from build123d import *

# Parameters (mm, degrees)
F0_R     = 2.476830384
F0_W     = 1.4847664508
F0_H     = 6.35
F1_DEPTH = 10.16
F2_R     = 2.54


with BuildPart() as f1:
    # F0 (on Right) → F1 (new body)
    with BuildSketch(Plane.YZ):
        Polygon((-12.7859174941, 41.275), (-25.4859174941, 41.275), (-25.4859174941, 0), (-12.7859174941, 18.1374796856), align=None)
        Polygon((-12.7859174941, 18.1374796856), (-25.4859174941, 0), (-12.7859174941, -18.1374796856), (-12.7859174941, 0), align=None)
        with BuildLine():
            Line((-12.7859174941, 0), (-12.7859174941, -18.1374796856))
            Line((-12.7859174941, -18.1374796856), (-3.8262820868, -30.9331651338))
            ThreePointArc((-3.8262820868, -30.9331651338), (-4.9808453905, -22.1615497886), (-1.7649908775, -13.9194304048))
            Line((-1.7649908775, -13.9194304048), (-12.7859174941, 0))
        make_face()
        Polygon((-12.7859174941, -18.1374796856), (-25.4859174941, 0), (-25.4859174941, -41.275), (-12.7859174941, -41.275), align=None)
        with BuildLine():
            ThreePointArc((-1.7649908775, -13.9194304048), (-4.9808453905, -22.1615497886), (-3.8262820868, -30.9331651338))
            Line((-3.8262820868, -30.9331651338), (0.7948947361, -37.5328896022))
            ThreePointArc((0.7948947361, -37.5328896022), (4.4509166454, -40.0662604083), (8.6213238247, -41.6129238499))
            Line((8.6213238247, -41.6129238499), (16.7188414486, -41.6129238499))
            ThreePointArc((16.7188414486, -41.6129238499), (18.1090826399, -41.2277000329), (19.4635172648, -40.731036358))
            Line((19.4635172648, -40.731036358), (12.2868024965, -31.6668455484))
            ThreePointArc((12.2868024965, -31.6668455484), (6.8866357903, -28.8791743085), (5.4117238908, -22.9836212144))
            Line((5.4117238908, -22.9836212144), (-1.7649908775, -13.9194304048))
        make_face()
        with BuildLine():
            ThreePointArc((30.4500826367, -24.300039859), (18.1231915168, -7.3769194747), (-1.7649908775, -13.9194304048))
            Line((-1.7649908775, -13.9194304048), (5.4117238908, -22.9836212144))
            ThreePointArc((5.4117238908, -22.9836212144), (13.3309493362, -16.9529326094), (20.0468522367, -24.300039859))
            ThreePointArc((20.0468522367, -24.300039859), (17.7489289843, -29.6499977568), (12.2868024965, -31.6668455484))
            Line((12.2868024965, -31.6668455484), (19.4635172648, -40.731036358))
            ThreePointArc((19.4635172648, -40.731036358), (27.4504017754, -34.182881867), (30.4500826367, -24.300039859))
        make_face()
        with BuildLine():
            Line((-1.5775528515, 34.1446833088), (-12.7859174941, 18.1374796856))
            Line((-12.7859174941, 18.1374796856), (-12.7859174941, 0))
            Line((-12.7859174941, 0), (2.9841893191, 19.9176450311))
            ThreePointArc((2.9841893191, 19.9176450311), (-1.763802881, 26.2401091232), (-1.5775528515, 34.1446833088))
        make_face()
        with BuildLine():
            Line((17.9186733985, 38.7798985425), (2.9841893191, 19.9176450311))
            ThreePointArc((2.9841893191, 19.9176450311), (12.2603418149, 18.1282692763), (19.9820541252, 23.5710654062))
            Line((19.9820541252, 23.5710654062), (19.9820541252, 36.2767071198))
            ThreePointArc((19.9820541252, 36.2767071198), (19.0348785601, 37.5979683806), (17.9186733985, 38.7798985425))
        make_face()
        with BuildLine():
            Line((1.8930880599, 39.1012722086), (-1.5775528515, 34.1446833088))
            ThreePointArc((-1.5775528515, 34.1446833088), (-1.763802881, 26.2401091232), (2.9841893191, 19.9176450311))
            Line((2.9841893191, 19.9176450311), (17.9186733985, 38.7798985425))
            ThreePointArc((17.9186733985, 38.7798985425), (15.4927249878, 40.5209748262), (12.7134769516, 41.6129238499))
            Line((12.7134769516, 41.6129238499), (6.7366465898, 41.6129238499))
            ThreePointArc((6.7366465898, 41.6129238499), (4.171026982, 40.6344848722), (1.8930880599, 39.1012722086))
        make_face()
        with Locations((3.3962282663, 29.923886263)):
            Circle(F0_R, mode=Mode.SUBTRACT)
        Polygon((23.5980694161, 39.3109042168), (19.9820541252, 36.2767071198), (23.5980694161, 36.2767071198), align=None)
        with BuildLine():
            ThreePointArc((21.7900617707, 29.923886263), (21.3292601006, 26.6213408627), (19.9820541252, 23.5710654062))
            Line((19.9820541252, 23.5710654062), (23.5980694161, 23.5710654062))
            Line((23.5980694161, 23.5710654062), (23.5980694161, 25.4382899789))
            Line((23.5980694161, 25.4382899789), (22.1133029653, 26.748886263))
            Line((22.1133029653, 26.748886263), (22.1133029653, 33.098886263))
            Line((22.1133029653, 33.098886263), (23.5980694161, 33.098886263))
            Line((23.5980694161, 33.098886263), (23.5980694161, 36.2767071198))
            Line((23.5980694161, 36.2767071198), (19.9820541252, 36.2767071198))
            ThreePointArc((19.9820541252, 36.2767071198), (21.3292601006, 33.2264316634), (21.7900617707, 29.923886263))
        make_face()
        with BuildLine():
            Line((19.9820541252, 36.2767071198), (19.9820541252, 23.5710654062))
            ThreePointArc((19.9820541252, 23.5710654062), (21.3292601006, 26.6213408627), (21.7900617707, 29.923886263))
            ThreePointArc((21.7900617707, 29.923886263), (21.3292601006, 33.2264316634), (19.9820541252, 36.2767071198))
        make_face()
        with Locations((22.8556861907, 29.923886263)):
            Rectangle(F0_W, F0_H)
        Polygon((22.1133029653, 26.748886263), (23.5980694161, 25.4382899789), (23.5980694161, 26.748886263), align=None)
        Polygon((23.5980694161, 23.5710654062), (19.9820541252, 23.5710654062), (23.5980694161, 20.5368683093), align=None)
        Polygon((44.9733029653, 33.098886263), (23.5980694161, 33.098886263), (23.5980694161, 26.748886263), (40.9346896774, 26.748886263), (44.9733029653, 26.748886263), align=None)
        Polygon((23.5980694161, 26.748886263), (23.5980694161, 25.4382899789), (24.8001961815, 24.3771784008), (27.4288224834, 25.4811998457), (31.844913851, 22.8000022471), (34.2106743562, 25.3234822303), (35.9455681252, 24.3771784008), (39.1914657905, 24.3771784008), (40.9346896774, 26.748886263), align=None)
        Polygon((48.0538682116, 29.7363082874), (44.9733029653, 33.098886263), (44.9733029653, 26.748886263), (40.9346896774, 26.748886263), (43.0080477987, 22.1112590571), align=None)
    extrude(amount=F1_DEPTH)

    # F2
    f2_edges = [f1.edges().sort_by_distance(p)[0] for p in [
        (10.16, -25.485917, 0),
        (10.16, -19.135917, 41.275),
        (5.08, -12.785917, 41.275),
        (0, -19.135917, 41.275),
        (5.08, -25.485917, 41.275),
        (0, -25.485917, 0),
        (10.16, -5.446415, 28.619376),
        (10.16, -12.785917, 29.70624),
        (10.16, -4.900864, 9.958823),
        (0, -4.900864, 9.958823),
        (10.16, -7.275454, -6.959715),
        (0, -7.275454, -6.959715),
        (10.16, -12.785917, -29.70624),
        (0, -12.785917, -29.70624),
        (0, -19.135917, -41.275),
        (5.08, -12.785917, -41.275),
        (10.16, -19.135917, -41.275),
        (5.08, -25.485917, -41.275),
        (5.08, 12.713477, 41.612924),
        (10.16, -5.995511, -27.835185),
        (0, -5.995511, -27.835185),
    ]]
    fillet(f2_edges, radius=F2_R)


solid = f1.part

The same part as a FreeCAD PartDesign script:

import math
import FreeCAD as App
import Part
import Sketcher
Q = App.Units.Quantity


def edges_at(feature, points):
    """Names of the edges that pass closest to the given points."""
    edges = feature.Shape.Edges
    near = lambda p: min(range(len(edges)), key=lambda i: edges[i].distToShape(Part.Vertex(*p))[0])
    return sorted({f"Edge{near(p) + 1}" for p in points})

doc = App.newDocument("Part")
body = doc.addObject("PartDesign::Body", "Body")

# Sketch on YZ plane
sketch1 = body.newObject("Sketcher::SketchObject", "Sketch")
sketch1.AttachmentSupport = (doc.getObject("YZ_Plane"), [""])
sketch1.MapMode = "FlatFace"
sketch1.addGeometry([
    Part.LineSegment(App.Vector(-12.785917, 41.275, 0), App.Vector(-25.485917, 41.275, 0)),  # 0
    Part.LineSegment(App.Vector(-25.485917, 41.275, 0), App.Vector(-25.485917, -41.275, 0)),  # 1
    Part.LineSegment(App.Vector(-25.485917, -41.275, 0), App.Vector(-12.785917, -41.275, 0)),  # 2
    Part.LineSegment(App.Vector(-12.785917, -41.275, 0), App.Vector(-12.785917, -18.13748, 0)),  # 3
    Part.LineSegment(App.Vector(-12.785917, -18.13748, 0), App.Vector(-3.826282, -30.933165, 0)),  # 4
    Part.LineSegment(App.Vector(-3.826282, -30.933165, 0), App.Vector(0.794895, -37.53289, 0)),  # 5
    Part.ArcOfCircle(Part.Circle(App.Vector(12.670083, -24.30004, 0), App.Vector(0, 0, 1), 17.78), math.radians(-131.904871), math.radians(-103.162536)),  # 6
    Part.LineSegment(App.Vector(8.621324, -41.612924, 0), App.Vector(16.718841, -41.612924, 0)),  # 7
    Part.ArcOfCircle(Part.Circle(App.Vector(12.670083, -24.30004, 0), App.Vector(0, 0, 1), 17.78), math.radians(-76.837464), math.radians(-67.537236)),  # 8
    Part.ArcOfCircle(Part.Circle(App.Vector(12.670083, -24.30004, 0), App.Vector(0, 0, 1), 17.78), math.radians(-67.537236), math.radians(0)),  # 9
    Part.ArcOfCircle(Part.Circle(App.Vector(12.670083, -24.30004, 0), App.Vector(0, 0, 1), 17.78), math.radians(0), math.radians(144.279177)),  # 10
    Part.LineSegment(App.Vector(-1.764991, -13.91943, 0), App.Vector(-12.785917, 0, 0)),  # 11
    Part.LineSegment(App.Vector(-12.785917, 0, 0), App.Vector(2.984189, 19.917645, 0)),  # 12
    Part.ArcOfCircle(Part.Circle(App.Vector(9.725062, 29.923886, 0), App.Vector(0, 0, 1), 12.065), math.radians(-123.96684), math.radians(-31.77262)),  # 13
    Part.LineSegment(App.Vector(19.982054, 23.571065, 0), App.Vector(23.598069, 20.536868, 0)),  # 14
    Part.LineSegment(App.Vector(23.598069, 20.536868, 0), App.Vector(23.598069, 25.43829, 0)),  # 15
    Part.LineSegment(App.Vector(23.598069, 25.43829, 0), App.Vector(24.800196, 24.377178, 0)),  # 16
    Part.LineSegment(App.Vector(24.800196, 24.377178, 0), App.Vector(27.428822, 25.4812, 0)),  # 17
    Part.LineSegment(App.Vector(27.428822, 25.4812, 0), App.Vector(31.844914, 22.800002, 0)),  # 18
    Part.LineSegment(App.Vector(31.844914, 22.800002, 0), App.Vector(34.210674, 25.323482, 0)),  # 19
    Part.LineSegment(App.Vector(34.210674, 25.323482, 0), App.Vector(35.945568, 24.377178, 0)),  # 20
    Part.LineSegment(App.Vector(35.945568, 24.377178, 0), App.Vector(39.191466, 24.377178, 0)),  # 21
    Part.LineSegment(App.Vector(39.191466, 24.377178, 0), App.Vector(40.93469, 26.748886, 0)),  # 22
    Part.LineSegment(App.Vector(40.93469, 26.748886, 0), App.Vector(43.008048, 22.111259, 0)),  # 23
    Part.LineSegment(App.Vector(43.008048, 22.111259, 0), App.Vector(48.053868, 29.736308, 0)),  # 24
    Part.LineSegment(App.Vector(48.053868, 29.736308, 0), App.Vector(44.973303, 33.098886, 0)),  # 25
    Part.LineSegment(App.Vector(44.973303, 33.098886, 0), App.Vector(23.598069, 33.098886, 0)),  # 26
    Part.LineSegment(App.Vector(23.598069, 33.098886, 0), App.Vector(23.598069, 39.310904, 0)),  # 27
    Part.LineSegment(App.Vector(23.598069, 39.310904, 0), App.Vector(19.982054, 36.276707, 0)),  # 28
    Part.ArcOfCircle(Part.Circle(App.Vector(9.725062, 29.923886, 0), App.Vector(0, 0, 1), 12.065), math.radians(31.77262), math.radians(47.224899)),  # 29
    Part.ArcOfCircle(Part.Circle(App.Vector(9.725062, 29.923886, 0), App.Vector(0, 0, 1), 12.065), math.radians(47.224899), math.radians(75.658967)),  # 30
    Part.LineSegment(App.Vector(12.713477, 41.612924, 0), App.Vector(6.736647, 41.612924, 0)),  # 31
    Part.ArcOfCircle(Part.Circle(App.Vector(9.725062, 29.923886, 0), App.Vector(0, 0, 1), 12.065), math.radians(104.341033), math.radians(130.477415)),  # 32
    Part.LineSegment(App.Vector(1.893088, 39.101272, 0), App.Vector(-1.577553, 34.144683, 0)),  # 33
    Part.LineSegment(App.Vector(-1.577553, 34.144683, 0), App.Vector(-12.785917, 18.13748, 0)),  # 34
    Part.LineSegment(App.Vector(-12.785917, 18.13748, 0), App.Vector(-12.785917, 41.275, 0)),  # 35
    Part.ArcOfCircle(Part.Circle(App.Vector(12.670083, -24.30004, 0), App.Vector(0, 0, 1), 7.37677), math.radians(169.720241), math.radians(267.021701)),  # 36
    Part.ArcOfCircle(Part.Circle(App.Vector(12.670083, -24.30004, 0), App.Vector(0, 0, 1), 7.37677), math.radians(0), math.radians(169.720241)),  # 37
    Part.ArcOfCircle(Part.Circle(App.Vector(12.670083, -24.30004, 0), App.Vector(0, 0, 1), 7.37677), math.radians(-92.978299), math.radians(0)),  # 38
    Part.Circle(App.Vector(3.396228, 29.923886, 0), App.Vector(0, 0, 1), 2.47683),  # 39
], False)
sketch1.addConstraint([
    Sketcher.Constraint("Coincident", 0, 2, 1, 1),
    Sketcher.Constraint("Coincident", 1, 2, 2, 1),
    Sketcher.Constraint("Coincident", 2, 2, 3, 1),
    Sketcher.Constraint("Coincident", 3, 2, 4, 1),
    Sketcher.Constraint("Coincident", 4, 2, 5, 1),
    Sketcher.Constraint("Coincident", 5, 2, 6, 1),
    Sketcher.Constraint("Coincident", 6, 2, 7, 1),
    Sketcher.Constraint("Coincident", 7, 2, 8, 1),
    Sketcher.Constraint("Tangent", 8, 2, 9, 1),
    Sketcher.Constraint("Tangent", 9, 2, 10, 1),
    Sketcher.Constraint("Coincident", 10, 2, 11, 1),
    Sketcher.Constraint("Coincident", 11, 2, 12, 1),
    Sketcher.Constraint("Coincident", 12, 2, 13, 1),
    Sketcher.Constraint("Coincident", 13, 2, 14, 1),
    Sketcher.Constraint("Coincident", 14, 2, 15, 1),
    Sketcher.Constraint("Coincident", 15, 2, 16, 1),
    Sketcher.Constraint("Coincident", 16, 2, 17, 1),
    Sketcher.Constraint("Coincident", 17, 2, 18, 1),
    Sketcher.Constraint("Coincident", 18, 2, 19, 1),
    Sketcher.Constraint("Coincident", 19, 2, 20, 1),
    Sketcher.Constraint("Coincident", 20, 2, 21, 1),
    Sketcher.Constraint("Coincident", 21, 2, 22, 1),
    Sketcher.Constraint("Coincident", 22, 2, 23, 1),
    Sketcher.Constraint("Coincident", 23, 2, 24, 1),
    Sketcher.Constraint("Coincident", 24, 2, 25, 1),
    Sketcher.Constraint("Coincident", 25, 2, 26, 1),
    Sketcher.Constraint("Coincident", 26, 2, 27, 1),
    Sketcher.Constraint("Coincident", 27, 2, 28, 1),
    Sketcher.Constraint("Coincident", 28, 2, 29, 1),
    Sketcher.Constraint("Tangent", 29, 2, 30, 1),
    Sketcher.Constraint("Coincident", 30, 2, 31, 1),
    Sketcher.Constraint("Coincident", 31, 2, 32, 1),
    Sketcher.Constraint("Coincident", 32, 2, 33, 1),
    Sketcher.Constraint("Coincident", 33, 2, 34, 1),
    Sketcher.Constraint("Coincident", 34, 2, 35, 1),
    Sketcher.Constraint("Coincident", 35, 2, 0, 1),
    Sketcher.Constraint("Tangent", 36, 1, 37, 2),
    Sketcher.Constraint("Tangent", 37, 1, 38, 2),
    Sketcher.Constraint("Tangent", 38, 1, 36, 2),
    Sketcher.Constraint("Horizontal", 0),
    Sketcher.Constraint("Vertical", 1),
    Sketcher.Constraint("Horizontal", 2),
    Sketcher.Constraint("Vertical", 3),
    Sketcher.Constraint("Horizontal", 7),
    Sketcher.Constraint("Vertical", 15),
    Sketcher.Constraint("Horizontal", 21),
    Sketcher.Constraint("Horizontal", 26),
    Sketcher.Constraint("Vertical", 27),
    Sketcher.Constraint("Horizontal", 31),
    Sketcher.Constraint("Vertical", 35),
    Sketcher.Constraint("Coincident", 8, 3, 6, 3),
    Sketcher.Constraint("Coincident", 10, 3, 6, 3),
    Sketcher.Constraint("Coincident", 29, 3, 13, 3),
    Sketcher.Constraint("Coincident", 32, 3, 13, 3),
    Sketcher.Constraint("Coincident", 36, 3, 6, 3),
    Sketcher.Constraint("Equal", 6, 8),
    Sketcher.Constraint("Equal", 13, 29),
    Sketcher.Constraint("Equal", 29, 30),
    Sketcher.Constraint("Equal", 30, 32),
    Sketcher.Constraint("Symmetric", 3, 2, 34, 2, -1),
    Sketcher.Constraint("PointOnObject", 11, 2, -1),
    Sketcher.Constraint("Parallel", 4, 5),
    Sketcher.Constraint("Parallel", 33, 34),
    Sketcher.Constraint("Horizontal", 32, 3, 39, 3),
    Sketcher.Constraint("Horizontal", 38, 3, 9, 2),
    Sketcher.Constraint("Horizontal", 16, 2, 20, 2),
    Sketcher.Constraint("Horizontal", 9, 2, 37, 1),
    Sketcher.Constraint("Vertical", 3, 2, 11, 2),
    Sketcher.Constraint("Vertical", 15, 2, 26, 2),
    Sketcher.Constraint("Vertical", 13, 2, 28, 2),
    Sketcher.Constraint("Equal", 3, 35),
    Sketcher.Constraint("Equal", 14, 28),
    Sketcher.Constraint("Radius", 6, Q("0.7 in")),
    Sketcher.Constraint("DistanceX", 0, 2, 0, 1, Q("0.5 in")),
    Sketcher.Constraint("Angle", 4, Q("-55 deg")),
    Sketcher.Constraint("Angle", 14, Q("-40 deg")),
    Sketcher.Constraint("Angle", 33, Q("-125 deg")),
    Sketcher.Constraint("Radius", 13, Q("0.475 in")),
    Sketcher.Constraint("Distance", 23, Q("0.2 in")),
    Sketcher.Constraint("DistanceY", 1, 2, 1, 1, Q("3.25 in")),
    Sketcher.Constraint("DistanceY", 22, 2, 25, 2, Q("0.25 in")),
    Sketcher.Constraint("Diameter", 39, Q("4.953661 mm")),
    Sketcher.Constraint("DistanceX", 7, 1, 7, 2, Q("0.3187999 in")),
    Sketcher.Constraint("Radius", 36, Q("7.37677 mm")),
    Sketcher.Constraint("Distance", 12, Q("25.404898 mm")),
    Sketcher.Constraint("DistanceX", 31, 2, 31, 1, Q("5.97683 mm")),
    Sketcher.Constraint("DistanceY", 3, 1, 3, 2, Q("23.13752 mm")),
    Sketcher.Constraint("DistanceY", 15, 1, 15, 2, Q("4.901422 mm")),
    Sketcher.Constraint("DistanceY", -1, 1, 17, 2, Q("25.4812 mm")),
    Sketcher.Constraint("DistanceY", -1, 1, 29, 2, Q("38.779899 mm")),
    Sketcher.Constraint("DistanceX", 1, 2, 6, 3, Q("38.156 mm")),
    Sketcher.Constraint("DistanceX", 15, 2, 20, 2, Q("12.347499 mm")),
    Sketcher.Constraint("DistanceX", 20, 2, 24, 2, Q("12.1083 mm")),
    Sketcher.Constraint("DistanceX", 33, 2, 31, 2, Q("8.314199 mm")),
    Sketcher.Constraint("Distance", 17, Q("2.851059 mm")),
    Sketcher.Constraint("Distance", 22, Q("2.943438 mm")),
    Sketcher.Constraint("DistanceX", 21, 1, 21, 2, Q("3.245898 mm")),
    Sketcher.Constraint("DistanceX", 26, 2, 26, 1, Q("21.375234 mm")),
    Sketcher.Constraint("DistanceY", 27, 1, 27, 2, Q("6.212018 mm")),
    Sketcher.Constraint("DistanceY", 6, 3, -1, 1, Q("24.30004 mm")),
    Sketcher.Constraint("DistanceX", -1, 1, 13, 3, Q("9.725062 mm")),
    Sketcher.Constraint("DistanceX", -1, 1, 39, 3, Q("3.396228 mm")),
    Sketcher.Constraint("DistanceX", -1, 1, 7, 2, Q("16.718841 mm")),
    Sketcher.Constraint("DistanceX", 10, 2, -1, 1, Q("1.764991 mm")),
    Sketcher.Constraint("DistanceX", -1, 1, 12, 2, Q("2.984189 mm")),
    Sketcher.Constraint("DistanceX", -1, 1, 14, 2, Q("23.598069 mm")),
    Sketcher.Constraint("DistanceY", -1, 1, 14, 2, Q("20.536868 mm")),
    Sketcher.Constraint("DistanceY", -1, 1, 16, 2, Q("24.377178 mm")),
    Sketcher.Constraint("DistanceY", -1, 1, 23, 2, Q("22.111259 mm")),
    Sketcher.Constraint("DistanceY", -1, 1, 24, 2, Q("29.736308 mm")),
    Sketcher.Constraint("DistanceY", 36, 1, -1, 1, Q("22.983621 mm")),
    Sketcher.Constraint("DistanceY", 6, 2, 4, 2, Q("10.679759 mm")),
    Sketcher.Constraint("DistanceX", 13, 2, 17, 2, Q("7.446768 mm")),
    Sketcher.Constraint("DistanceX", 17, 2, 18, 2, Q("4.416091 mm")),
    Sketcher.Constraint("DistanceX", 18, 2, 19, 2, Q("2.365761 mm")),
    Sketcher.Constraint("DistanceY", 18, 2, 19, 2, Q("2.52348 mm")),
    Sketcher.Constraint("DistanceX", 38, 1, 6, 3, Q("0.38328 mm")),
    Sketcher.Constraint("Distance", 18, Q("5.166303 mm")),
    Sketcher.Constraint("DistanceX", -1, 1, 8, 2, Q("19.463517 mm")),
])
pad1 = body.newObject("PartDesign::Pad", "Pad")
pad1.Profile = sketch1
pad1.Length = Q("0.4 in")
doc.recompute()

fillet = body.newObject("PartDesign::Fillet", "Fillet")
fillet.Base = (pad1, edges_at(pad1, [
    (10.16, -25.486, 0),
    (10.16, -19.136, 41.275),
    (5.08, -12.786, 41.275),
    (0, -19.136, 41.275),
    (5.08, -25.486, 41.275),
    (0, -25.486, 0),
    (10.16, -7.182, 26.141),
    (10.16, -12.786, 29.706),
    (10.16, -4.901, 9.959),
    (0, -4.901, 9.959),
    (10.16, -7.275, -6.96),
    (0, -7.275, -6.96),
    (10.16, -12.786, -29.706),
    (0, -12.786, -29.706),
    (0, -19.136, -41.275),
    (5.08, -12.786, -41.275),
    (10.16, -19.136, -41.275),
    (5.08, -25.486, -41.275),
    (5.08, 12.713, 41.613),
    (10.16, -8.306, -24.535),
    (0, -8.306, -24.535),
]))
fillet.Radius = Q("0.1 in")

doc.recompute()
